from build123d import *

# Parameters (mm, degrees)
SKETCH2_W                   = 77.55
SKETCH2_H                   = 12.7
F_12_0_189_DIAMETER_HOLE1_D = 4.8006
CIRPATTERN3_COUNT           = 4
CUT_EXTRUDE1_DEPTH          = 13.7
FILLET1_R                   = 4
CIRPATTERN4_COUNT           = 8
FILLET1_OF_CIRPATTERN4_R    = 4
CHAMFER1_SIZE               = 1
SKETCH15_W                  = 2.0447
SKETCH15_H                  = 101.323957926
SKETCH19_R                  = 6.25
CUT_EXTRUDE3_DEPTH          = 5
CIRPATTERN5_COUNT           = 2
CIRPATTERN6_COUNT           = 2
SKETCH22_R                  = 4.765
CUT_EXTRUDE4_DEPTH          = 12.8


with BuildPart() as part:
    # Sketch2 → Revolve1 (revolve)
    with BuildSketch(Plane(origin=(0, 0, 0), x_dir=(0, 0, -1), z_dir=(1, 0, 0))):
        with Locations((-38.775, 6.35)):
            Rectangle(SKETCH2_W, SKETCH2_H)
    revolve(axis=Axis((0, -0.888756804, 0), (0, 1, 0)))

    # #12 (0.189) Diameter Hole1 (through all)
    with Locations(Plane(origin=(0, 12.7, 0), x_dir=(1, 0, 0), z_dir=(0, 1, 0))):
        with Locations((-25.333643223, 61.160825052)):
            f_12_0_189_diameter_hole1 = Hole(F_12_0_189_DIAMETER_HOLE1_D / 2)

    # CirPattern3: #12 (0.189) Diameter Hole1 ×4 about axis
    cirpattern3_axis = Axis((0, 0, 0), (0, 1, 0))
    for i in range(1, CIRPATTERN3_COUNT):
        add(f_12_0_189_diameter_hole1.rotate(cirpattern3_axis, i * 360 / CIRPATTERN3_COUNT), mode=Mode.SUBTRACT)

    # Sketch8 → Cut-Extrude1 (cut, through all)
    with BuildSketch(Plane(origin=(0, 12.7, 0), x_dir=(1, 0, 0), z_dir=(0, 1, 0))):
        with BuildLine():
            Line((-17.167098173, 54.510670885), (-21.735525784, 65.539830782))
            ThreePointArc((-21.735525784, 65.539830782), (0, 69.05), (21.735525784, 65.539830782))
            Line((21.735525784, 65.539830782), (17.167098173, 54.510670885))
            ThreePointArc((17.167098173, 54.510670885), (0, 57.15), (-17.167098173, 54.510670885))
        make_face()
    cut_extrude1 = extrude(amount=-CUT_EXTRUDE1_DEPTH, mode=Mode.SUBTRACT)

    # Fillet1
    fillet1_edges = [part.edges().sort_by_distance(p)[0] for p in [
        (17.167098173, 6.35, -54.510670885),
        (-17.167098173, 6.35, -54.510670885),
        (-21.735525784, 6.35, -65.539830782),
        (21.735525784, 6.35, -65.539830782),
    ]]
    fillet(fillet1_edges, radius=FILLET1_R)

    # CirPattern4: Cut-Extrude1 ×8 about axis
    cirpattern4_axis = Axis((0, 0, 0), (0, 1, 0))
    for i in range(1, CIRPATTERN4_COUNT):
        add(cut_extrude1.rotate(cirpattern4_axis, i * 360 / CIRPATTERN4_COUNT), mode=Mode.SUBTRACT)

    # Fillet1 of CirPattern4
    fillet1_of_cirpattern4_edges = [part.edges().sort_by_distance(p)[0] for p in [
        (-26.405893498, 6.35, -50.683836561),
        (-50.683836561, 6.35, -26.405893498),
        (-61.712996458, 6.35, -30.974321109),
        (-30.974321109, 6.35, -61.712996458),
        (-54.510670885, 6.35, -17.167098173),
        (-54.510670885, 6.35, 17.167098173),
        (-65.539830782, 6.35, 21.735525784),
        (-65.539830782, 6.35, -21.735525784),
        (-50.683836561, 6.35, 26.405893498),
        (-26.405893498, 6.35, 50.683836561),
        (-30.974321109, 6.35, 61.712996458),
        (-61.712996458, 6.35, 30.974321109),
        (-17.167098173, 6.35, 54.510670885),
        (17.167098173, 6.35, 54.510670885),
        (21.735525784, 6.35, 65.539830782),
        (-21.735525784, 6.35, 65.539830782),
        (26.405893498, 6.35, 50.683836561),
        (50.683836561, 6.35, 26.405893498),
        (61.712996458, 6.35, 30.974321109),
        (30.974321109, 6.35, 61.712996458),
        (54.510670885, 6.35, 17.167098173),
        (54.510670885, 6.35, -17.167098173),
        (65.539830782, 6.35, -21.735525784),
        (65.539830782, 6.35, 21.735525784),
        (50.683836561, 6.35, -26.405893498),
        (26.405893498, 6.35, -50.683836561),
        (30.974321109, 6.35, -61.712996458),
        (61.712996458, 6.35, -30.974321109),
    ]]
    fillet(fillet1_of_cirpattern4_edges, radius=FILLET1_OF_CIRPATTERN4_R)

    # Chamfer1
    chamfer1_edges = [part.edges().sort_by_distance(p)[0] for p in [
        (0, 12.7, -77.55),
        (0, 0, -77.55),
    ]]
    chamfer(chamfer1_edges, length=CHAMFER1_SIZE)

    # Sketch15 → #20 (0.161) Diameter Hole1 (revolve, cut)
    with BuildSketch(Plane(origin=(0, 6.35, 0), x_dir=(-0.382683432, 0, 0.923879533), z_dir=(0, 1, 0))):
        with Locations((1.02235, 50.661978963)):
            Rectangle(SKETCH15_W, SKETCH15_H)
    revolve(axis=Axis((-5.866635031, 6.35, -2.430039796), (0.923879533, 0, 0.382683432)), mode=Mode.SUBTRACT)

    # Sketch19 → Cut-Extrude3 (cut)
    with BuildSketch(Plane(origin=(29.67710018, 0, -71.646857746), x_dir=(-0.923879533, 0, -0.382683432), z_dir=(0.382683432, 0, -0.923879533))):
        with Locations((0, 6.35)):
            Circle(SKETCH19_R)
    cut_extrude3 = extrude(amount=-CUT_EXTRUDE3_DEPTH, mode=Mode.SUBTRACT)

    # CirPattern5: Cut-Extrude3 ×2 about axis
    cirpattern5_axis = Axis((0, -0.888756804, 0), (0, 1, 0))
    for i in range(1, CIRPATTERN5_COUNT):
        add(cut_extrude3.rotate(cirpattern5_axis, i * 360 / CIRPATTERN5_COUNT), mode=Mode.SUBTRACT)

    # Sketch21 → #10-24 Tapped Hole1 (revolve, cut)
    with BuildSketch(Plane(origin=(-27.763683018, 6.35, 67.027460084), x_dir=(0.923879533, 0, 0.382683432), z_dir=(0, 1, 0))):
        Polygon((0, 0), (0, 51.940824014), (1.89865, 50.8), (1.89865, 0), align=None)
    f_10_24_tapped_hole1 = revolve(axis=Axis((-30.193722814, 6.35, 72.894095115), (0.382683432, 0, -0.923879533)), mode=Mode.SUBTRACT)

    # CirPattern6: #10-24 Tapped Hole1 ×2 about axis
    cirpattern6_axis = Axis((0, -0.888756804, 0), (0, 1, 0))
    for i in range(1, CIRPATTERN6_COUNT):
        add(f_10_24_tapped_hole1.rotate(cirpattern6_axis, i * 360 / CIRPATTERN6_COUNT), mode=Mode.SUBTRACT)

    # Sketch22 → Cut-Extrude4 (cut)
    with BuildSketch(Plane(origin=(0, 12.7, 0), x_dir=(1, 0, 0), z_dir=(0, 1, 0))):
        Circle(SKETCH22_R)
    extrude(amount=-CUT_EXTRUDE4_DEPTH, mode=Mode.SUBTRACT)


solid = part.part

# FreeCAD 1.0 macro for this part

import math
import FreeCAD as App
import Part
import Sketcher

V = App.Vector
Q = App.Units.Quantity


def edges_at(feature, points):
    """Names of the edges that pass closest to the given points."""
    edges = feature.Shape.Edges
    near = lambda p: min(range(len(edges)), key=lambda i: edges[i].distToShape(Part.Vertex(*p))[0])
    return sorted({f"Edge{near(p) + 1}" for p in points})


def add_polygon(sketch, points):
    """Adds a closed chain of lines whose ends are joined by coincident constraints."""
    first, n = sketch.GeometryCount, len(points)
    for a, b in zip(points, points[1:] + points[:1]):
        sketch.addGeometry(Part.LineSegment(App.Vector(*a, 0), App.Vector(*b, 0)), False)
    for i in range(n):
        sketch.addConstraint(Sketcher.Constraint("Coincident", first + i, 2, first + (i + 1) % n, 1))

doc = App.newDocument("Part")
body = doc.addObject("PartDesign::Body", "Body")

# Sketch on YZ plane
sketch1 = body.newObject("Sketcher::SketchObject", "Sketch")
sketch1.AttachmentSupport = (doc.getObject("YZ_Plane"), [""])
sketch1.MapMode = "FlatFace"
add_polygon(sketch1, [(13, 78), (0, 78), (0, 0), (13, 0)])  # lines 0-3
sketch1.addConstraint(Sketcher.Constraint("Horizontal", 0))
sketch1.addConstraint(Sketcher.Constraint("Vertical", 1))
sketch1.addConstraint(Sketcher.Constraint("Horizontal", 2))
sketch1.addConstraint(Sketcher.Constraint("Vertical", 3))
sketch1.addConstraint(Sketcher.Constraint("Coincident", 1, 2, -1, 1))
sketch1.addConstraint(Sketcher.Constraint("DistanceX", 0, 2, 0, 1, 12.7))
sketch1.addConstraint(Sketcher.Constraint("DistanceY", 1, 2, 1, 1, 77.55))
revolution = body.newObject("PartDesign::Revolution", "Revolution")
revolution.Profile = sketch1
revolution.ReferenceAxis = (sketch1, ["H_Axis"])
revolution.Angle = 360

# Sketch on XZ plane
sketch2 = body.newObject("Sketcher::SketchObject", "Sketch001")
sketch2.AttachmentSupport = (doc.getObject("XZ_Plane"), [""])
sketch2.MapMode = "FlatFace"
sketch2.AttachmentOffset = App.Placement(V(0, 0, -12.7), App.Rotation())
sketch2.addGeometry(Part.Circle(V(-25.3, -61.2, 0), V(0, 0, 1), 2.4), False)
sketch2.addConstraint(Sketcher.Constraint("Diameter", 0, 4.8006))
sketch2.addConstraint(Sketcher.Constraint("DistanceX", 0, 3, -1, 1, 25.333643))
sketch2.addConstraint(Sketcher.Constraint("DistanceY", 0, 3, -1, 1, 61.160825))
doc.recompute()
hole = body.newObject("PartDesign::Hole", "Hole")
hole.Profile = sketch2
hole.ThreadType = "None"
hole.Diameter = 4.8006
hole.DepthType = "ThroughAll"
hole.Reversed = True
doc.recompute()

polarpattern = body.newObject("PartDesign::PolarPattern", "PolarPattern")
polarpattern.Originals = [hole]
polarpattern.Axis = (doc.getObject("Y_Axis"), [""])
polarpattern.Angle = 360
polarpattern.Occurrences = 4
body.Tip = polarpattern

# Sketch on XZ plane
sketch3 = body.newObject("Sketcher::SketchObject", "Sketch002")
sketch3.AttachmentSupport = (doc.getObject("XZ_Plane"), [""])
sketch3.MapMode = "FlatFace"
sketch3.AttachmentOffset = App.Placement(V(0, 0, -12.7), App.Rotation())
sketch3.addGeometry(Part.LineSegment(V(-22, -66, 0), V(-17, -55, 0)), False)
sketch3.addGeometry(Part.ArcOfCircle(Part.Circle(V(0, 0, 0), V(0, 0, 1), 57), math.radians(-107), math.radians(-73)), False)
sketch3.addGeometry(Part.LineSegment(V(17, -55, 0), V(22, -66, 0)), False)
sketch3.addGeometry(Part.ArcOfCircle(Part.Circle(V(0, 0, 0), V(0, 0, 1), 69), math.radians(-108), math.radians(-72)), False)
sketch3.addConstraint(Sketcher.Constraint("Coincident", 0, 2, 1, 1))
sketch3.addConstraint(Sketcher.Constraint("Coincident", 1, 2, 2, 1))
sketch3.addConstraint(Sketcher.Constraint("Coincident", 2, 2, 3, 2))
sketch3.addConstraint(Sketcher.Constraint("Coincident", 3, 1, 0, 1))
sketch3.addConstraint(Sketcher.Constraint("Coincident", 1, 3, -1, 1))
sketch3.addConstraint(Sketcher.Constraint("Coincident", 3, 3, -1, 1))
sketch3.addConstraint(Sketcher.Constraint("Horizontal", 0, 2, 1, 2))
sketch3.addConstraint(Sketcher.Constraint("Horizontal", 2, 2, 3, 1))
sketch3.addConstraint(Sketcher.Constraint("Radius", 1, 57.15))
sketch3.addConstraint(Sketcher.Constraint("Radius", 3, 69.05))
sketch3.addConstraint(Sketcher.Constraint("Angle", 0, Q("67.5 deg")))
sketch3.addConstraint(Sketcher.Constraint("DistanceX", 0, 2, -1, 1, 17.167098))
pocket1 = body.newObject("PartDesign::Pocket", "Pocket")
pocket1.Profile = sketch3
pocket1.Type = "ThroughAll"
pocket1.Reversed = True
doc.recompute()

fillet = body.newObject("PartDesign::Fillet", "Fillet")
fillet.Base = (pocket1, edges_at(pocket1, [
    (17.167, 6.35, -54.511),
    (-17.167, 6.35, -54.511),
    (-21.736, 6.35, -65.54),
    (21.736, 6.35, -65.54),
]))
fillet.Radius = 4
doc.recompute()

polarpattern2 = body.newObject("PartDesign::PolarPattern", "PolarPattern001")
polarpattern2.Originals = [pocket1]
polarpattern2.Axis = (doc.getObject("Y_Axis"), [""])
polarpattern2.Angle = 360
polarpattern2.Occurrences = 8
body.Tip = polarpattern2
doc.recompute()

fillet2 = body.newObject("PartDesign::Fillet", "Fillet001")
fillet2.Base = (polarpattern2, edges_at(polarpattern2, [
    (-26.406, 6.35, -50.684),
    (-50.684, 6.35, -26.406),
    (-61.713, 6.35, -30.974),
    (-30.974, 6.35, -61.713),
    (-54.511, 6.35, -17.167),
    (-54.511, 6.35, 17.167),
    (-65.54, 6.35, 21.736),
    (-65.54, 6.35, -21.736),
    (-50.684, 6.35, 26.406),
    (-26.406, 6.35, 50.684),
    (-30.974, 6.35, 61.713),
    (-61.713, 6.35, 30.974),
    (-17.167, 6.35, 54.511),
    (17.167, 6.35, 54.511),
    (21.736, 6.35, 65.54),
    (-21.736, 6.35, 65.54),
    (26.406, 6.35, 50.684),
    (50.684, 6.35, 26.406),
    (61.713, 6.35, 30.974),
    (30.974, 6.35, 61.713),
    (54.511, 6.35, 17.167),
    (54.511, 6.35, -17.167),
    (65.54, 6.35, -21.736),
    (65.54, 6.35, 21.736),
    (50.684, 6.35, -26.406),
    (26.406, 6.35, -50.684),
    (30.974, 6.35, -61.713),
    (61.713, 6.35, -30.974),
]))
fillet2.Radius = 4
doc.recompute()

chamfer = body.newObject("PartDesign::Chamfer", "Chamfer")
chamfer.Base = (fillet2, edges_at(fillet2, [(0, 12.7, -77.55), (0, 0, -77.55)]))
chamfer.Size = 1

# Sketch on XZ plane
sketch4 = body.newObject("Sketcher::SketchObject", "Sketch003")
sketch4.AttachmentSupport = (doc.getObject("XZ_Plane"), [""])
sketch4.MapMode = "FlatFace"
sketch4.AttachmentOffset = App.Placement(V(0, 0, -6.35), App.Rotation())
add_polygon(sketch4, [(93.6, 38.8), (0, 0), (-0.8, 1.9), (92.8, 40.7)])  # lines 0-3
sketch4.addGeometry(Part.LineSegment(V(0, 0, 0), V(93.6, 38.8, 0)), True)  # axis
sketch4.addConstraint(Sketcher.Constraint("Coincident", 0, 2, -1, 1))
sketch4.addConstraint(Sketcher.Constraint("Coincident", 4, 1, -1, 1))
sketch4.addConstraint(Sketcher.Constraint("Coincident", 4, 2, 3, 2))
sketch4.addConstraint(Sketcher.Constraint("Perpendicular", 0, 1))
sketch4.addConstraint(Sketcher.Constraint("Perpendicular", 1, 2))
sketch4.addConstraint(Sketcher.Constraint("Perpendicular", 2, 3))
sketch4.addConstraint(Sketcher.Constraint("Angle", 0, Q("-157.5 deg")))
sketch4.addConstraint(Sketcher.Constraint("DistanceY", -1, 1, 3, 2, 38.775))
sketch4.addConstraint(Sketcher.Constraint("Distance", 1, 2.0447))
groove = body.newObject("PartDesign::Groove", "Groove")
groove.Profile = sketch4
groove.ReferenceAxis = (sketch4, ["Axis0"])
groove.Angle = 360

# Sketch on an angled plane
sketch5 = body.newObject("Sketcher::SketchObject", "Sketch004")
sketch5.Placement = App.Placement(V(29.6771, 0, -71.646858), App.Rotation(V(-0.923879533, 0, -0.382683432), V(0, 1.000000001, 0), V(0.382683432, 0, -0.923879533), "ZXY"))
sketch5.addGeometry(Part.Circle(V(0, 6, 0), V(0, 0, 1), 6), False)
sketch5.addConstraint(Sketcher.Constraint("PointOnObject", 0, 3, -2))
sketch5.addConstraint(Sketcher.Constraint("Diameter", 0, 12.5))
sketch5.addConstraint(Sketcher.Constraint("DistanceY", -1, 1, 0, 3, 6.35))
pocket2 = body.newObject("PartDesign::Pocket", "Pocket001")
pocket2.Profile = sketch5
pocket2.Length = 5
doc.recompute()

polarpattern3 = body.newObject("PartDesign::PolarPattern", "PolarPattern002")
polarpattern3.Originals = [pocket2]
polarpattern3.Axis = (doc.getObject("Y_Axis"), [""])
polarpattern3.Angle = 360
polarpattern3.Occurrences = 2
body.Tip = polarpattern3

# Sketch on XZ plane
sketch6 = body.newObject("Sketcher::SketchObject", "Sketch005")
sketch6.AttachmentSupport = (doc.getObject("XZ_Plane"), [""])
sketch6.MapMode = "FlatFace"
sketch6.AttachmentOffset = App.Placement(V(0, 0, -6.35), App.Rotation())
add_polygon(sketch6, [(-7.9, 19), (-27.8, 67), (-26, 67.8), (-6.6, 20.8)])  # lines 0-3
sketch6.addGeometry(Part.LineSegment(V(-27.8, 67, 0), V(-7.9, 19, 0)), True)  # axis
sketch6.addConstraint(Sketcher.Constraint("Coincident", 4, 1, 0, 2))
sketch6.addConstraint(Sketcher.Constraint("Coincident", 4, 2, 3, 2))
sketch6.addConstraint(Sketcher.Constraint("Perpendicular", 0, 1))
sketch6.addConstraint(Sketcher.Constraint("Perpendicular", 1, 2))
sketch6.addConstraint(Sketcher.Constraint("Angle", 0, Q("112.5 deg")))
sketch6.addConstraint(Sketcher.Constraint("Angle", 3, Q("-126.5 deg")))
sketch6.addConstraint(Sketcher.Constraint("Distance", 2, 50.8))
sketch6.addConstraint(Sketcher.Constraint("DistanceY", 2, 2, 0, 2, 46.206498))
sketch6.addConstraint(Sketcher.Constraint("DistanceY", -1, 1, 0, 2, 67.02746))
sketch6.addConstraint(Sketcher.Constraint("DistanceX", 1, 2, -1, 1, 26.009559))
groove2 = body.newObject("PartDesign::Groove", "Groove001")
groove2.Profile = sketch6
groove2.ReferenceAxis = (sketch6, ["Axis0"])
groove2.Angle = 360
doc.recompute()

polarpattern4 = body.newObject("PartDesign::PolarPattern", "PolarPattern003")
polarpattern4.Originals = [groove2]
polarpattern4.Axis = (doc.getObject("Y_Axis"), [""])
polarpattern4.Angle = 360
polarpattern4.Occurrences = 2
body.Tip = polarpattern4

# Sketch on XZ plane
sketch7 = body.newObject("Sketcher::SketchObject", "Sketch006")
sketch7.AttachmentSupport = (doc.getObject("XZ_Plane"), [""])
sketch7.MapMode = "FlatFace"
sketch7.AttachmentOffset = App.Placement(V(0, 0, -12.7), App.Rotation())
sketch7.addGeometry(Part.Circle(V(0, 0, 0), V(0, 0, 1), 4.8), False)
sketch7.addConstraint(Sketcher.Constraint("Coincident", 0, 3, -1, 1))
sketch7.addConstraint(Sketcher.Constraint("Diameter", 0, 9.53))
pocket3 = body.newObject("PartDesign::Pocket", "Pocket002")
pocket3.Profile = sketch7
pocket3.Length = 12.8
pocket3.Reversed = True

doc.recompute()
